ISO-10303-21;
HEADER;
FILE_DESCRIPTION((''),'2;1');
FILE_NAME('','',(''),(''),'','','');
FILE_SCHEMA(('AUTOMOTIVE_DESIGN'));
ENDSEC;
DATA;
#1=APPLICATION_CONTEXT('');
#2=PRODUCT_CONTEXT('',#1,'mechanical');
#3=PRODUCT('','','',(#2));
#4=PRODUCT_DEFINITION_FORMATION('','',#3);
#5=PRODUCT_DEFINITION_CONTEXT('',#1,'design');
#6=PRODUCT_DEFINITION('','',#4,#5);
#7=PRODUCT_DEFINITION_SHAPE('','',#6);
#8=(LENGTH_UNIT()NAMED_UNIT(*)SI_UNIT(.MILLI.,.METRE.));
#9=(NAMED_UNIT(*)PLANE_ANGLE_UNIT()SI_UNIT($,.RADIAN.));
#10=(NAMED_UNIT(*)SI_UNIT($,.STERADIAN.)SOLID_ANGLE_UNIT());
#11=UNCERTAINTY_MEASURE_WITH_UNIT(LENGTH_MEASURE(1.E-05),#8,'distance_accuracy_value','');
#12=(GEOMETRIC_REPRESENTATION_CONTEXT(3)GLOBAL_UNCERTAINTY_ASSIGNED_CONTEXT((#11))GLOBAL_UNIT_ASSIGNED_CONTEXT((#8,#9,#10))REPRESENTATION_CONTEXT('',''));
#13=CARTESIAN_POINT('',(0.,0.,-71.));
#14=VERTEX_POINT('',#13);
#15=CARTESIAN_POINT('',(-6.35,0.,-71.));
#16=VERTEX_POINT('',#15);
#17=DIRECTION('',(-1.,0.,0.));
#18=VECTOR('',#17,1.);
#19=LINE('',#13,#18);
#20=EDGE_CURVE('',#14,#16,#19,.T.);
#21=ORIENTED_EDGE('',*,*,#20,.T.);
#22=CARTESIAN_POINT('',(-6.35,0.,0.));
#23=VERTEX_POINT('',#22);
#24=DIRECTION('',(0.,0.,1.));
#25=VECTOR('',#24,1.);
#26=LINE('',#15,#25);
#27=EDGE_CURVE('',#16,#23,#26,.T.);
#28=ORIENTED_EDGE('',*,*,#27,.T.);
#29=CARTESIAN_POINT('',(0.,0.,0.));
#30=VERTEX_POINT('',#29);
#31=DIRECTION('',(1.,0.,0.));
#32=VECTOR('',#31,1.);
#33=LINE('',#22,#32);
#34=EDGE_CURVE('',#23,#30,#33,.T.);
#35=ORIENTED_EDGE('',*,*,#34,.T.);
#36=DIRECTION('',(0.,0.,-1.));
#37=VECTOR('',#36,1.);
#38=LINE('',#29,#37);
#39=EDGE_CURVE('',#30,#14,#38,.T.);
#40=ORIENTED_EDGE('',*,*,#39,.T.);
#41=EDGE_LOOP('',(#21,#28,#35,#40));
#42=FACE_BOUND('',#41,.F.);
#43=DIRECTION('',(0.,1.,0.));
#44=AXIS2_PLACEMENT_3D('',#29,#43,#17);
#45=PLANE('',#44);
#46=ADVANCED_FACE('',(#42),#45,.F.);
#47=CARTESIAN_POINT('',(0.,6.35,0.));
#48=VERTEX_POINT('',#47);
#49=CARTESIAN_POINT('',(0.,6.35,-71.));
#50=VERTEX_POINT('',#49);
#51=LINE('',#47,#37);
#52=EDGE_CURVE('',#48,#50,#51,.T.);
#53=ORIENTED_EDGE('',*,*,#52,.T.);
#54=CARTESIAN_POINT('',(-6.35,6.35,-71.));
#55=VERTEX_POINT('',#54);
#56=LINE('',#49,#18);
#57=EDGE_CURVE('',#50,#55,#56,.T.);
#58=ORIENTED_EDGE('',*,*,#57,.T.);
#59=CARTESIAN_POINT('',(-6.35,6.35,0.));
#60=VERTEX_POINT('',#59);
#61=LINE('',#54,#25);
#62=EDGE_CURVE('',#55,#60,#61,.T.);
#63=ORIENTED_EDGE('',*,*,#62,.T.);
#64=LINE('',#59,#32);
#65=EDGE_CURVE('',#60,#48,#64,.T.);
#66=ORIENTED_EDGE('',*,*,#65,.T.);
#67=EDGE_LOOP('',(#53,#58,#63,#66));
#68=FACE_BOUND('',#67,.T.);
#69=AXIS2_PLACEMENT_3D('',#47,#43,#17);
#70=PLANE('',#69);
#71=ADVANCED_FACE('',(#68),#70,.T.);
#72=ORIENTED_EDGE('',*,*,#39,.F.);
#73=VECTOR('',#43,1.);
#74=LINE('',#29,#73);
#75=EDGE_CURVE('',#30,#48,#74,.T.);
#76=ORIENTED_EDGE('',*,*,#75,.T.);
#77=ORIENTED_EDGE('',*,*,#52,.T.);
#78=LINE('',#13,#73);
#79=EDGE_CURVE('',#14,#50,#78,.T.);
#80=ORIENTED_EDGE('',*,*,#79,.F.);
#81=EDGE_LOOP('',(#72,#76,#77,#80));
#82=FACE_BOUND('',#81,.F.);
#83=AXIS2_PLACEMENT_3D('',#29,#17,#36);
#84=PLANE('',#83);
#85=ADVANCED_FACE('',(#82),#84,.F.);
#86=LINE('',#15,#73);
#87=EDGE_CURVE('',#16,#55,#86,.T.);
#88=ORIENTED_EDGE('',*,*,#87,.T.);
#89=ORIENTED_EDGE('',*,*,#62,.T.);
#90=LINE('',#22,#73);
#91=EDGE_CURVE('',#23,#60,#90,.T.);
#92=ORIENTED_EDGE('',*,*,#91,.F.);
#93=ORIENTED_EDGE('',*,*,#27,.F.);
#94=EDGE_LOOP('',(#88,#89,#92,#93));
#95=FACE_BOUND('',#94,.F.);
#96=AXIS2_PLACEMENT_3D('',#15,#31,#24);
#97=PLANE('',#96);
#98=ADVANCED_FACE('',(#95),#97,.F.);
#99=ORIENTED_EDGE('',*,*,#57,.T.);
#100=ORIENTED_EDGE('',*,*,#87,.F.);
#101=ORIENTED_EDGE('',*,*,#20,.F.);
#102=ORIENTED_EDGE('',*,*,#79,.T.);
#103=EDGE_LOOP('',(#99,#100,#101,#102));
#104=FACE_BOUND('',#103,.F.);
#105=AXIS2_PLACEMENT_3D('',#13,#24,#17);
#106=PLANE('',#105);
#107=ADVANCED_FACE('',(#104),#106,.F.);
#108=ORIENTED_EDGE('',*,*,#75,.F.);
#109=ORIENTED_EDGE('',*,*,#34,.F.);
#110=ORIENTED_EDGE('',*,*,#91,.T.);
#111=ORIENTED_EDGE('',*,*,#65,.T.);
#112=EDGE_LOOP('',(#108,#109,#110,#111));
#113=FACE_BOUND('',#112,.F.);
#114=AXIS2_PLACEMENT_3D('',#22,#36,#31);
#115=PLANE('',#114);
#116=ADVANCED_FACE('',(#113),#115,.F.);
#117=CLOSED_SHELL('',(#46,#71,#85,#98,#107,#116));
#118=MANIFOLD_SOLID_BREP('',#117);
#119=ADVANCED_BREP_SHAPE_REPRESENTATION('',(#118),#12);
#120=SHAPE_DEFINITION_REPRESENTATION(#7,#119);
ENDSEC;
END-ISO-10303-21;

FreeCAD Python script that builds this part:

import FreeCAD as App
import Part
import Sketcher
from FreeCAD import Vector

doc = App.newDocument("Part")
body = doc.addObject("PartDesign::Body", "Body")

sketch1 = doc.addObject("Sketcher::SketchObject", "Sketch")
body.addObject(sketch1)
sketch1.AttachmentSupport = (doc.XZ_Plane, [""])
sketch1.MapMode = "FlatFace"
sketch1.addGeometry([
    Part.LineSegment(Vector(-6.35, 0, 0), Vector(0, 0, 0)),
    Part.LineSegment(Vector(0, 0, 0), Vector(0, -71, 0)),
    Part.LineSegment(Vector(0, -71, 0), Vector(-6.35, -71, 0)),
    Part.LineSegment(Vector(-6.35, -71, 0), Vector(-6.35, 0, 0)),
], False)
sketch1.addConstraint([
    Sketcher.Constraint("Coincident", 0, 2, 1, 1),
    Sketcher.Constraint("Coincident", 1, 2, 2, 1),
    Sketcher.Constraint("Coincident", 2, 2, 3, 1),
    Sketcher.Constraint("Coincident", 3, 2, 0, 1),
    Sketcher.Constraint("Horizontal", 0),
    Sketcher.Constraint("Vertical", 1),
    Sketcher.Constraint("Horizontal", 2),
    Sketcher.Constraint("Vertical", 3),
    Sketcher.Constraint("Coincident", 0, 2, -1, 1),
    Sketcher.Constraint("DistanceY", 1, 2, 1, 1, 71.0),
    Sketcher.Constraint("DistanceX", 0, 1, 0, 2, 6.35),
])
pad1 = doc.addObject("PartDesign::Pad", "Pad")
body.addObject(pad1)
pad1.Profile = sketch1
pad1.Length = 6.35
pad1.Reversed = True

doc.recompute()
